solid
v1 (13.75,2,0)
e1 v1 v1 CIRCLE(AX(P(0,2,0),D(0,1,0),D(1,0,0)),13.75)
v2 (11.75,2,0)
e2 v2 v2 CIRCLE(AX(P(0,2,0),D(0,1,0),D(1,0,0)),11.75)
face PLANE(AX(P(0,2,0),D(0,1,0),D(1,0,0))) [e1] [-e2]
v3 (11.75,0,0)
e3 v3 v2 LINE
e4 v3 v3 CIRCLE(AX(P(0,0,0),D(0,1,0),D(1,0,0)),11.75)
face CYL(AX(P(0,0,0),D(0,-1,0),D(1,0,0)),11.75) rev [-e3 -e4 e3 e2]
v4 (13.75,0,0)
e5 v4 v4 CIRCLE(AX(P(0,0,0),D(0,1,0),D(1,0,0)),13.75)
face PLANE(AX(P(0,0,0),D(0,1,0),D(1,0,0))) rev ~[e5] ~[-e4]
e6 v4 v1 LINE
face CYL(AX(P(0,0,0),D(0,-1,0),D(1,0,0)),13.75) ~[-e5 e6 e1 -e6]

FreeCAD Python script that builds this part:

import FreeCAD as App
import Part
import Sketcher
from FreeCAD import Vector
Q = App.Units.Quantity

doc = App.newDocument("Part")
params = doc.addObject("Spreadsheet::Sheet", "Params")
for row, (alias, value) in enumerate([
    ("sketch1_diameter", "27.5 mm"),
    ("sketch1_diameter2", "23.5 mm"),
    ("pad1_length", "2 mm"),
], start=1):
    params.set(f"A{row}", alias)
    params.set(f"B{row}", "=" + value)
    params.setAlias(f"B{row}", alias)

body = doc.addObject("PartDesign::Body", "Body")

# Sketch on XZ plane
sketch1 = body.newObject("Sketcher::SketchObject", "Sketch")
sketch1.AttachmentSupport = (doc.getObject("XZ_Plane"), [""])
sketch1.MapMode = "FlatFace"
sketch1.addGeometry(Part.Circle(Vector(0, 0, 0), Vector(0, 0, 1), 13.75), False)
sketch1.addGeometry(Part.Circle(Vector(0, 0, 0), Vector(0, 0, 1), 11.75), False)
sketch1.addConstraint(Sketcher.Constraint("Coincident", 0, 3, -1, 1))
sketch1.addConstraint(Sketcher.Constraint("Coincident", 1, 3, -1, 1))
sketch1.addConstraint(Sketcher.Constraint("Diameter", 0, Q("27.5 mm")))
sketch1.addConstraint(Sketcher.Constraint("Diameter", 1, Q("23.5 mm")))
sketch1.setExpression("Constraints[2]", "Params.sketch1_diameter")
sketch1.setExpression("Constraints[3]", "Params.sketch1_diameter2")
pad1 = body.newObject("PartDesign::Pad", "Pad")
pad1.Profile = sketch1
pad1.setExpression("Length", "Params.pad1_length")
pad1.Reversed = True

doc.recompute()
